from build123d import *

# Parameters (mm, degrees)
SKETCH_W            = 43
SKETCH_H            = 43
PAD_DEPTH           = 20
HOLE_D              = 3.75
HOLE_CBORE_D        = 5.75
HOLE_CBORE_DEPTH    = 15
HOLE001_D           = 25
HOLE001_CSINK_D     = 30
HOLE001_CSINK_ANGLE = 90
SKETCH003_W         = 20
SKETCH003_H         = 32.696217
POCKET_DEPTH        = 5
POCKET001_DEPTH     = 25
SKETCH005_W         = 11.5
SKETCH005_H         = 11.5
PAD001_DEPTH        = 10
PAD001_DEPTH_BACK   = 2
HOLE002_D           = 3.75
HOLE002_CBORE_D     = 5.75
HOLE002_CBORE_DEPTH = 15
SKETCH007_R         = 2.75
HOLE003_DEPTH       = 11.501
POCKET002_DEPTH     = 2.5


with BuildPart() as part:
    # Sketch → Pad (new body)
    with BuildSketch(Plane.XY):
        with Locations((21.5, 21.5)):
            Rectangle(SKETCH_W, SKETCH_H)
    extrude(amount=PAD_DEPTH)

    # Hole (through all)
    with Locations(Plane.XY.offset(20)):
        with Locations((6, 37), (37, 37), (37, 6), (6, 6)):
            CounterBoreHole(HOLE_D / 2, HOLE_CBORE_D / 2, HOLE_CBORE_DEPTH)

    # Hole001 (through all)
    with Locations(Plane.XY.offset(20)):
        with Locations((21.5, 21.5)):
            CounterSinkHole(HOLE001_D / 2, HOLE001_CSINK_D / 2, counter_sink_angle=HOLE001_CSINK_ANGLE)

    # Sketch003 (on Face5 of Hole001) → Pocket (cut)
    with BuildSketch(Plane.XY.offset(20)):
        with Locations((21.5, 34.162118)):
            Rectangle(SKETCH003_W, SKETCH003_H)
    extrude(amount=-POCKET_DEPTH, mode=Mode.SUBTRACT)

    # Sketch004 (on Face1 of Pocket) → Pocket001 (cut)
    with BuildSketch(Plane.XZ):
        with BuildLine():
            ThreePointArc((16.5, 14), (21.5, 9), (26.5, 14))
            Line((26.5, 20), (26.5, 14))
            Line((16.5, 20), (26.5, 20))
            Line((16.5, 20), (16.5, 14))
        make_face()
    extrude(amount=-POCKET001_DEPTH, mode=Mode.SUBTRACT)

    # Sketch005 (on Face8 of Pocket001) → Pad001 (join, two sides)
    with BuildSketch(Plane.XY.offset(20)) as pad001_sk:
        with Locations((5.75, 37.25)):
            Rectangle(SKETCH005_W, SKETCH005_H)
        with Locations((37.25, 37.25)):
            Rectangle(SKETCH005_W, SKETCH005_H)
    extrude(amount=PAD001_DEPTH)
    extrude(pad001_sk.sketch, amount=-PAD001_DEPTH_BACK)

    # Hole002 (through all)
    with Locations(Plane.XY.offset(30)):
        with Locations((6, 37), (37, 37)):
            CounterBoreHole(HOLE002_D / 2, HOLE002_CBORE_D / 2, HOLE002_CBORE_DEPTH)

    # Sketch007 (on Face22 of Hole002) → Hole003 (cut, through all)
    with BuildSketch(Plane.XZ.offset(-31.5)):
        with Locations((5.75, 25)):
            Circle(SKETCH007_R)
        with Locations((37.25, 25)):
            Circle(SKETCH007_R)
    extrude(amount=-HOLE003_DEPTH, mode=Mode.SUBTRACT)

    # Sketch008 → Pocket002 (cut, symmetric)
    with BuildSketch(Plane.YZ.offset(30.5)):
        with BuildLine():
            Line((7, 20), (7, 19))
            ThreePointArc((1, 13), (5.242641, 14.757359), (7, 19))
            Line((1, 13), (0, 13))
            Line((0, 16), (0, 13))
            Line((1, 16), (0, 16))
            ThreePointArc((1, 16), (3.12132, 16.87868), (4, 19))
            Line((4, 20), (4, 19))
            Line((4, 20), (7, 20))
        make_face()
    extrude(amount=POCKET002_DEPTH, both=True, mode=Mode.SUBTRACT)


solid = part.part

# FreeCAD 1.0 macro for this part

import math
import FreeCAD as App
import Part
import Sketcher

V = App.Vector
Q = App.Units.Quantity


def add_polygon(sketch, points):
    """Adds a closed chain of lines whose ends are joined by coincident constraints."""
    first, n = sketch.GeometryCount, len(points)
    for a, b in zip(points, points[1:] + points[:1]):
        sketch.addGeometry(Part.LineSegment(App.Vector(*a, 0), App.Vector(*b, 0)), False)
    for i in range(n):
        sketch.addConstraint(Sketcher.Constraint("Coincident", first + i, 2, first + (i + 1) % n, 1))

doc = App.newDocument("Part")
body = doc.addObject("PartDesign::Body", "Body")

# Sketch on XY plane
sketch1 = body.newObject("Sketcher::SketchObject", "Sketch")
sketch1.AttachmentSupport = (doc.getObject("XY_Plane"), [""])
sketch1.MapMode = "FlatFace"
add_polygon(sketch1, [(0, 43), (0, 0), (43, 0), (43, 43)])  # lines 0-3
sketch1.addConstraint(Sketcher.Constraint("Vertical", 0))
sketch1.addConstraint(Sketcher.Constraint("Horizontal", 1))
sketch1.addConstraint(Sketcher.Constraint("Vertical", 2))
sketch1.addConstraint(Sketcher.Constraint("Horizontal", 3))
sketch1.addConstraint(Sketcher.Constraint("Coincident", 0, 2, -1, 1))
sketch1.addConstraint(Sketcher.Constraint("Equal", 3, 0))
sketch1.addConstraint(Sketcher.Constraint("DistanceX", 1, 1, 1, 2, Q("43 mm")))
pad1 = body.newObject("PartDesign::Pad", "Pad")
pad1.Profile = sketch1
pad1.Length = 20

# Sketch on XY plane
sketch2 = body.newObject("Sketcher::SketchObject", "Sketch001")
sketch2.AttachmentSupport = (doc.getObject("XY_Plane"), [""])
sketch2.MapMode = "FlatFace"
sketch2.AttachmentOffset = App.Placement(V(0, 0, 20), App.Rotation())
sketch2.addGeometry(Part.Circle(V(6, 37, 0), V(0, 0, 1), 1.9), False)
sketch2.addGeometry(Part.Circle(V(37, 37, 0), V(0, 0, 1), 1.9), False)
sketch2.addGeometry(Part.Circle(V(37, 6, 0), V(0, 0, 1), 1.9), False)
sketch2.addGeometry(Part.Circle(V(6, 6, 0), V(0, 0, 1), 1.9), False)
sketch2.addConstraint(Sketcher.Constraint("Equal", 0, 1))
sketch2.addConstraint(Sketcher.Constraint("Equal", 1, 2))
sketch2.addConstraint(Sketcher.Constraint("Equal", 2, 3))
sketch2.addConstraint(Sketcher.Constraint("Horizontal", 0, 3, 1, 3))
sketch2.addConstraint(Sketcher.Constraint("Horizontal", 2, 3, 3, 3))
sketch2.addConstraint(Sketcher.Constraint("Vertical", 1, 3, 2, 3))
sketch2.addConstraint(Sketcher.Constraint("Vertical", 0, 3, 3, 3))
sketch2.addConstraint(Sketcher.Constraint("Diameter", 0, Q("3.75 mm")))
sketch2.addConstraint(Sketcher.Constraint("DistanceX", -1, 1, 0, 3, Q("6 mm")))
sketch2.addConstraint(Sketcher.Constraint("DistanceY", -1, 1, 0, 3, Q("37 mm")))
sketch2.addConstraint(Sketcher.Constraint("DistanceX", -1, 1, 1, 3, Q("37 mm")))
sketch2.addConstraint(Sketcher.Constraint("DistanceY", -1, 1, 2, 3, Q("6 mm")))
doc.recompute()
hole = body.newObject("PartDesign::Hole", "Hole")
hole.Profile = sketch2
hole.ThreadType = "None"
hole.Diameter = 3.75
hole.DepthType = "ThroughAll"
hole.HoleCutType = "Counterbore"
hole.HoleCutDiameter = 5.75
hole.HoleCutDepth = 15

# Sketch on XY plane
sketch3 = body.newObject("Sketcher::SketchObject", "Sketch002")
sketch3.AttachmentSupport = (doc.getObject("XY_Plane"), [""])
sketch3.MapMode = "FlatFace"
sketch3.AttachmentOffset = App.Placement(V(0, 0, 20), App.Rotation())
sketch3.addGeometry(Part.Circle(V(22, 22, 0), V(0, 0, 1), 12), False)
sketch3.addConstraint(Sketcher.Constraint("Diameter", 0, Q("25 mm")))
sketch3.addConstraint(Sketcher.Constraint("DistanceX", -1, 1, 0, 3, Q("21.5 mm")))
sketch3.addConstraint(Sketcher.Constraint("DistanceY", -1, 1, 0, 3, Q("21.5 mm")))
doc.recompute()
hole2 = body.newObject("PartDesign::Hole", "Hole001")
hole2.Profile = sketch3
hole2.ThreadType = "None"
hole2.Diameter = 25
hole2.DepthType = "ThroughAll"
hole2.HoleCutType = "Countersink"
hole2.HoleCutDiameter = 30
hole2.HoleCutCountersinkAngle = 90

# Sketch on XY plane
sketch4 = body.newObject("Sketcher::SketchObject", "Sketch003")
sketch4.AttachmentSupport = (doc.getObject("XY_Plane"), [""])
sketch4.MapMode = "FlatFace"
sketch4.AttachmentOffset = App.Placement(V(0, 0, 20), App.Rotation())
add_polygon(sketch4, [(12, 51), (12, 18), (32, 18), (32, 51)])  # lines 0-3
sketch4.addConstraint(Sketcher.Constraint("Vertical", 0))
sketch4.addConstraint(Sketcher.Constraint("Horizontal", 1))
sketch4.addConstraint(Sketcher.Constraint("Vertical", 2))
sketch4.addConstraint(Sketcher.Constraint("Horizontal", 3))
sketch4.addConstraint(Sketcher.Constraint("DistanceX", 1, 1, 1, 2, Q("20 mm")))
sketch4.addConstraint(Sketcher.Constraint("DistanceX", -1, 1, 0, 2, Q("11.5 mm")))
sketch4.addConstraint(Sketcher.Constraint("DistanceY", 0, 2, 0, 1, Q("32.696217 mm")))
sketch4.addConstraint(Sketcher.Constraint("DistanceY", -1, 1, 0, 2, Q("17.81401 mm")))
pocket1 = body.newObject("PartDesign::Pocket", "Pocket")
pocket1.Profile = sketch4
pocket1.Length = 5

# Sketch on XZ plane
sketch5 = body.newObject("Sketcher::SketchObject", "Sketch004")
sketch5.AttachmentSupport = (doc.getObject("XZ_Plane"), [""])
sketch5.MapMode = "FlatFace"
sketch5.addGeometry(Part.ArcOfCircle(Part.Circle(V(22, 14, 0), V(0, 0, 1), 5), math.radians(180), math.radians(360)), False)
sketch5.addGeometry(Part.LineSegment(V(26, 14, 0), V(26, 20, 0)), False)
sketch5.addGeometry(Part.LineSegment(V(26, 20, 0), V(16, 20, 0)), False)
sketch5.addGeometry(Part.LineSegment(V(16, 20, 0), V(16, 14, 0)), False)
sketch5.addConstraint(Sketcher.Constraint("Tangent", 0, 2, 1, 1))
sketch5.addConstraint(Sketcher.Constraint("Coincident", 1, 2, 2, 1))
sketch5.addConstraint(Sketcher.Constraint("Coincident", 2, 2, 3, 1))
sketch5.addConstraint(Sketcher.Constraint("Tangent", 3, 2, 0, 1))
sketch5.addConstraint(Sketcher.Constraint("Vertical", 1))
sketch5.addConstraint(Sketcher.Constraint("Horizontal", 2))
sketch5.addConstraint(Sketcher.Constraint("Vertical", 3))
sketch5.addConstraint(Sketcher.Constraint("Radius", 0, Q("5 mm")))
sketch5.addConstraint(Sketcher.Constraint("DistanceY", 1, 1, 1, 2, Q("6 mm")))
sketch5.addConstraint(Sketcher.Constraint("DistanceY", -1, 1, 0, 3, Q("14 mm")))
sketch5.addConstraint(Sketcher.Constraint("DistanceX", -1, 1, 0, 3, Q("21.5 mm")))
pocket2 = body.newObject("PartDesign::Pocket", "Pocket001")
pocket2.Profile = sketch5
pocket2.Length = 25

# Sketch on XY plane
sketch6 = body.newObject("Sketcher::SketchObject", "Sketch005")
sketch6.AttachmentSupport = (doc.getObject("XY_Plane"), [""])
sketch6.MapMode = "FlatFace"
sketch6.AttachmentOffset = App.Placement(V(0, 0, 20), App.Rotation())
add_polygon(sketch6, [(0, 43), (0, 32), (12, 32), (12, 43)])  # lines 0-3
add_polygon(sketch6, [(32, 43), (32, 32), (43, 32), (43, 43)])  # lines 4-7
sketch6.addConstraint(Sketcher.Constraint("Vertical", 0))
sketch6.addConstraint(Sketcher.Constraint("Horizontal", 1))
sketch6.addConstraint(Sketcher.Constraint("Vertical", 2))
sketch6.addConstraint(Sketcher.Constraint("Horizontal", 3))
sketch6.addConstraint(Sketcher.Constraint("Vertical", 4))
sketch6.addConstraint(Sketcher.Constraint("Horizontal", 5))
sketch6.addConstraint(Sketcher.Constraint("Vertical", 6))
sketch6.addConstraint(Sketcher.Constraint("Horizontal", 7))
sketch6.addConstraint(Sketcher.Constraint("PointOnObject", 0, 2, -2))
sketch6.addConstraint(Sketcher.Constraint("Horizontal", 1, 2, 4, 2))
sketch6.addConstraint(Sketcher.Constraint("Horizontal", 3, 2, 6, 2))
sketch6.addConstraint(Sketcher.Constraint("Equal", 3, 5))
sketch6.addConstraint(Sketcher.Constraint("Equal", 7, 0))
sketch6.addConstraint(Sketcher.Constraint("DistanceX", 1, 1, 1, 2, Q("11.5 mm")))
sketch6.addConstraint(Sketcher.Constraint("DistanceY", -1, 1, 2, 2, Q("43 mm")))
sketch6.addConstraint(Sketcher.Constraint("DistanceX", -1, 1, 5, 2, Q("43 mm")))
pad2 = body.newObject("PartDesign::Pad", "Pad001")
pad2.Profile = sketch6
pad2.Type = "TwoLengths"
pad2.Length = 10
pad2.Length2 = 2

# Sketch on XY plane
sketch7 = body.newObject("Sketcher::SketchObject", "Sketch006")
sketch7.AttachmentSupport = (doc.getObject("XY_Plane"), [""])
sketch7.MapMode = "FlatFace"
sketch7.AttachmentOffset = App.Placement(V(0, 0, 30), App.Rotation())
sketch7.addGeometry(Part.Circle(V(6, 37, 0), V(0, 0, 1), 1.9), False)
sketch7.addGeometry(Part.Circle(V(37, 37, 0), V(0, 0, 1), 1.9), False)
sketch7.addConstraint(Sketcher.Constraint("Equal", 0, 1))
sketch7.addConstraint(Sketcher.Constraint("Horizontal", 0, 3, 1, 3))
sketch7.addConstraint(Sketcher.Constraint("Diameter", 0, Q("3.75 mm")))
sketch7.addConstraint(Sketcher.Constraint("DistanceX", -1, 1, 0, 3, Q("6 mm")))
sketch7.addConstraint(Sketcher.Constraint("DistanceY", -1, 1, 0, 3, Q("37 mm")))
sketch7.addConstraint(Sketcher.Constraint("DistanceX", -1, 1, 1, 3, Q("37 mm")))
doc.recompute()
hole3 = body.newObject("PartDesign::Hole", "Hole002")
hole3.Profile = sketch7
hole3.ThreadType = "None"
hole3.Diameter = 3.75
hole3.DepthType = "ThroughAll"
hole3.HoleCutType = "Counterbore"
hole3.HoleCutDiameter = 5.75
hole3.HoleCutDepth = 15

# Sketch on XZ plane
sketch8 = body.newObject("Sketcher::SketchObject", "Sketch007")
sketch8.AttachmentSupport = (doc.getObject("XZ_Plane"), [""])
sketch8.MapMode = "FlatFace"
sketch8.AttachmentOffset = App.Placement(V(0, 0, -31.5), App.Rotation())
sketch8.addGeometry(Part.Circle(V(5.8, 25, 0), V(0, 0, 1), 2.8), False)
sketch8.addGeometry(Part.Circle(V(37.2, 25, 0), V(0, 0, 1), 2.8), False)
sketch8.addConstraint(Sketcher.Constraint("Equal", 0, 1))
sketch8.addConstraint(Sketcher.Constraint("Horizontal", 0, 3, 1, 3))
sketch8.addConstraint(Sketcher.Constraint("Diameter", 0, Q("5.5 mm")))
sketch8.addConstraint(Sketcher.Constraint("DistanceY", -1, 1, 0, 3, Q("25 mm")))
sketch8.addConstraint(Sketcher.Constraint("DistanceX", 0, 3, 1, 3, Q("31.5 mm")))
sketch8.addConstraint(Sketcher.Constraint("DistanceX", -1, 1, 0, 3, Q("5.75 mm")))
pocket3 = body.newObject("PartDesign::Pocket", "Pocket002")
pocket3.Profile = sketch8
pocket3.Type = "ThroughAll"

# Sketch on YZ plane
sketch9 = body.newObject("Sketcher::SketchObject", "Sketch008")
sketch9.AttachmentSupport = (doc.getObject("YZ_Plane"), [""])
sketch9.MapMode = "FlatFace"
sketch9.AttachmentOffset = App.Placement(V(0, 0, 30.5), App.Rotation())
sketch9.addGeometry(Part.LineSegment(V(7, 19, 0), V(7, 20, 0)), False)
sketch9.addGeometry(Part.LineSegment(V(7, 20, 0), V(4, 20, 0)), False)
sketch9.addGeometry(Part.LineSegment(V(4, 20, 0), V(4, 19, 0)), False)
sketch9.addGeometry(Part.ArcOfCircle(Part.Circle(V(1, 19, 0), V(0, 0, 1), 3), math.radians(-90), math.radians(0)), False)
sketch9.addGeometry(Part.LineSegment(V(1, 16, 0), V(0, 16, 0)), False)
sketch9.addGeometry(Part.LineSegment(V(0, 16, 0), V(0, 13, 0)), False)
sketch9.addGeometry(Part.LineSegment(V(0, 13, 0), V(1, 13, 0)), False)
sketch9.addGeometry(Part.ArcOfCircle(Part.Circle(V(1, 19, 0), V(0, 0, 1), 6), math.radians(-90), math.radians(0)), False)
sketch9.addConstraint(Sketcher.Constraint("Coincident", 0, 2, 1, 1))
sketch9.addConstraint(Sketcher.Constraint("Coincident", 1, 2, 2, 1))
sketch9.addConstraint(Sketcher.Constraint("Tangent", 2, 2, 3, 2))
sketch9.addConstraint(Sketcher.Constraint("Tangent", 3, 1, 4, 1))
sketch9.addConstraint(Sketcher.Constraint("Coincident", 4, 2, 5, 1))
sketch9.addConstraint(Sketcher.Constraint("Coincident", 5, 2, 6, 1))
sketch9.addConstraint(Sketcher.Constraint("Tangent", 6, 2, 7, 1))
sketch9.addConstraint(Sketcher.Constraint("Tangent", 7, 2, 0, 1))
sketch9.addConstraint(Sketcher.Constraint("Vertical", 0))
sketch9.addConstraint(Sketcher.Constraint("Horizontal", 1))
sketch9.addConstraint(Sketcher.Constraint("Vertical", 2))
sketch9.addConstraint(Sketcher.Constraint("Horizontal", 4))
sketch9.addConstraint(Sketcher.Constraint("Vertical", 5))
sketch9.addConstraint(Sketcher.Constraint("Horizontal", 6))
sketch9.addConstraint(Sketcher.Constraint("Coincident", 7, 3, 3, 3))
sketch9.addConstraint(Sketcher.Constraint("PointOnObject", 4, 2, -2))
sketch9.addConstraint(Sketcher.Constraint("Equal", 6, 0))
sketch9.addConstraint(Sketcher.Constraint("Radius", 3, Q("3.000001 mm")))
sketch9.addConstraint(Sketcher.Constraint("Radius", 7, Q("5.999999 mm")))
sketch9.addConstraint(Sketcher.Constraint("DistanceX", 4, 2, 4, 1, Q("1 mm")))
sketch9.addConstraint(Sketcher.Constraint("DistanceY", -1, 1, 3, 3, Q("19.000001 mm")))
pocket4 = body.newObject("PartDesign::Pocket", "Pocket003")
pocket4.Profile = sketch9
pocket4.Length = 5
pocket4.Midplane = True

doc.recompute()
